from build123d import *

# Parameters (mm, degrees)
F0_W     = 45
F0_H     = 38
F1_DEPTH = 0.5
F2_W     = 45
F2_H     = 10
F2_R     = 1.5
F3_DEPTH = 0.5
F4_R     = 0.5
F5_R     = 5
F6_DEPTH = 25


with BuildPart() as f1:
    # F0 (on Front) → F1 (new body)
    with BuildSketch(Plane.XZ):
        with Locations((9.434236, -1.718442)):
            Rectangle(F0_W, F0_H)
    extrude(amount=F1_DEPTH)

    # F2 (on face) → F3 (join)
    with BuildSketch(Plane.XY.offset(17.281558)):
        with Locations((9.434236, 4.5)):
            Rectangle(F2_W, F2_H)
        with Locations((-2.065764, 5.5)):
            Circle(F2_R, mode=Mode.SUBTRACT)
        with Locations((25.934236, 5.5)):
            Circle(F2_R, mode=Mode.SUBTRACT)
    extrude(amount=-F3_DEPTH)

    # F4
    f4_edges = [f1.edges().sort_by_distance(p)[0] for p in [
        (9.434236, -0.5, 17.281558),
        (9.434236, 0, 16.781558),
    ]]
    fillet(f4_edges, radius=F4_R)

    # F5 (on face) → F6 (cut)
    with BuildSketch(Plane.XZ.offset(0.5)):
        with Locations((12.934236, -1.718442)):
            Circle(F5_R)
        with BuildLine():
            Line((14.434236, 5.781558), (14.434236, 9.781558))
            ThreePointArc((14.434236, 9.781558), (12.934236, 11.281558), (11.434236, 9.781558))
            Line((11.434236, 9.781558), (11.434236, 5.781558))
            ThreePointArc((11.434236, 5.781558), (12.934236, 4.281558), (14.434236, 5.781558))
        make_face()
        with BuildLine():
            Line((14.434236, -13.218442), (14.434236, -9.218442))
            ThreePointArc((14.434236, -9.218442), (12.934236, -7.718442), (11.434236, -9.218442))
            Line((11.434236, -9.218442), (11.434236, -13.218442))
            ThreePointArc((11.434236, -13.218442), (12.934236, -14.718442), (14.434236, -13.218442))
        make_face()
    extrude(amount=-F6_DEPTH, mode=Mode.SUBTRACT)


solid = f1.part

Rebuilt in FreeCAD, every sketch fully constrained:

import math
import FreeCAD as App
import Part
import Sketcher


def edges_at(feature, points):
    """Names of the edges that pass closest to the given points."""
    edges = feature.Shape.Edges
    near = lambda p: min(range(len(edges)), key=lambda i: edges[i].distToShape(Part.Vertex(*p))[0])
    return sorted({f"Edge{near(p) + 1}" for p in points})


def add_polygon(sketch, points):
    """Adds a closed chain of lines whose ends are joined by coincident constraints."""
    first, n = sketch.GeometryCount, len(points)
    for a, b in zip(points, points[1:] + points[:1]):
        sketch.addGeometry(Part.LineSegment(App.Vector(*a, 0), App.Vector(*b, 0)), False)
    for i in range(n):
        sketch.addConstraint(Sketcher.Constraint("Coincident", first + i, 2, first + (i + 1) % n, 1))

doc = App.newDocument("Part")
body = doc.addObject("PartDesign::Body", "Body")

sketch1 = doc.addObject("Sketcher::SketchObject", "Sketch")
body.addObject(sketch1)
sketch1.AttachmentSupport = (doc.XZ_Plane, [""])
sketch1.MapMode = "FlatFace"
add_polygon(sketch1, [(-13.065764, 17.281558), (-13.065764, -20.718442), (31.934236, -20.718442), (31.934236, 17.281558)])
sketch1.addConstraint([
    Sketcher.Constraint("Vertical", 0),
    Sketcher.Constraint("Horizontal", 1),
    Sketcher.Constraint("Vertical", 2),
    Sketcher.Constraint("Horizontal", 3),
    Sketcher.Constraint("DistanceX", 1, 1, 1, 2, 45.0),
    Sketcher.Constraint("DistanceY", 0, 2, 0, 1, 38.0),
    Sketcher.Constraint("DistanceY", 0, 2, -1, 1, 20.718442),
    Sketcher.Constraint("DistanceX", 0, 2, -1, 1, 13.065764),
])
pad1 = doc.addObject("PartDesign::Pad", "Pad")
body.addObject(pad1)
pad1.Profile = sketch1
pad1.Length = 0.5

sketch2 = doc.addObject("Sketcher::SketchObject", "Sketch001")
body.addObject(sketch2)
sketch2.AttachmentSupport = (doc.XY_Plane, [""])
sketch2.MapMode = "FlatFace"
sketch2.AttachmentOffset = App.Placement(App.Vector(0, 0, 17.281558), App.Rotation())
add_polygon(sketch2, [(-13.065764, 9.5), (-13.065764, -0.5), (31.934236, -0.5), (31.934236, 9.5)])
sketch2.addGeometry(Part.Circle(App.Vector(-2.065764, 5.5, 0), App.Vector(0, 0, 1), 1.5), False)
sketch2.addGeometry(Part.Circle(App.Vector(25.934236, 5.5, 0), App.Vector(0, 0, 1), 1.5), False)
sketch2.addConstraint([
    Sketcher.Constraint("Vertical", 0),
    Sketcher.Constraint("Horizontal", 1),
    Sketcher.Constraint("Vertical", 2),
    Sketcher.Constraint("Horizontal", 3),
    Sketcher.Constraint("Equal", 4, 5),
    Sketcher.Constraint("Horizontal", 4, 3, 5, 3),
    Sketcher.Constraint("Diameter", 4, 3.0),
    Sketcher.Constraint("DistanceX", 1, 1, 1, 2, 45.0),
    Sketcher.Constraint("DistanceY", 0, 2, 0, 1, 10.0),
    Sketcher.Constraint("DistanceX", 4, 3, 5, 3, 28.0),
    Sketcher.Constraint("DistanceX", 0, 2, 4, 3, 11.0),
    Sketcher.Constraint("DistanceY", 0, 2, 4, 3, 6.0),
    Sketcher.Constraint("DistanceY", -1, 1, 4, 3, 5.5),
    Sketcher.Constraint("DistanceX", 4, 3, -1, 1, 2.065764),
])
pad2 = doc.addObject("PartDesign::Pad", "Pad001")
body.addObject(pad2)
pad2.Profile = sketch2
pad2.Length = 0.5
pad2.Reversed = True
doc.recompute()

fillet = doc.addObject("PartDesign::Fillet", "Fillet")
body.addObject(fillet)
fillet.Base = (pad2, edges_at(pad2, [(9.434, -0.5, 17.282), (9.434, 0, 16.782)]))
fillet.Radius = 0.5

sketch3 = doc.addObject("Sketcher::SketchObject", "Sketch002")
body.addObject(sketch3)
sketch3.AttachmentSupport = (doc.XZ_Plane, [""])
sketch3.MapMode = "FlatFace"
sketch3.AttachmentOffset = App.Placement(App.Vector(0, 0, 0.5), App.Rotation())
sketch3.addGeometry([
    Part.Circle(App.Vector(12.934236, -1.718442, 0), App.Vector(0, 0, 1), 5),
    Part.LineSegment(App.Vector(14.434236, 5.781558, 0), App.Vector(14.434236, 9.781558, 0)),
    Part.ArcOfCircle(Part.Circle(App.Vector(12.934236, 9.781558, 0), App.Vector(0, 0, 1), 1.5), math.radians(0), math.radians(180)),
    Part.LineSegment(App.Vector(11.434236, 9.781558, 0), App.Vector(11.434236, 5.781558, 0)),
    Part.ArcOfCircle(Part.Circle(App.Vector(12.934236, 5.781558, 0), App.Vector(0, 0, 1), 1.5), math.radians(180), math.radians(360)),
    Part.LineSegment(App.Vector(14.434236, -13.218442, 0), App.Vector(14.434236, -9.218442, 0)),
    Part.ArcOfCircle(Part.Circle(App.Vector(12.934236, -9.218442, 0), App.Vector(0, 0, 1), 1.5), math.radians(0), math.radians(180)),
    Part.LineSegment(App.Vector(11.434236, -9.218442, 0), App.Vector(11.434236, -13.218442, 0)),
    Part.ArcOfCircle(Part.Circle(App.Vector(12.934236, -13.218442, 0), App.Vector(0, 0, 1), 1.5), math.radians(180), math.radians(360)),
], False)
sketch3.addConstraint([
    Sketcher.Constraint("Tangent", 1, 2, 2, 1),
    Sketcher.Constraint("Tangent", 2, 2, 3, 1),
    Sketcher.Constraint("Tangent", 3, 2, 4, 1),
    Sketcher.Constraint("Tangent", 4, 2, 1, 1),
    Sketcher.Constraint("Tangent", 5, 2, 6, 1),
    Sketcher.Constraint("Tangent", 6, 2, 7, 1),
    Sketcher.Constraint("Tangent", 7, 2, 8, 1),
    Sketcher.Constraint("Tangent", 8, 2, 5, 1),
    Sketcher.Constraint("Vertical", 1),
    Sketcher.Constraint("Vertical", 3),
    Sketcher.Constraint("Vertical", 5),
    Sketcher.Constraint("Vertical", 7),
    Sketcher.Constraint("Equal", 4, 6),
    Sketcher.Constraint("Vertical", 0, 3, 2, 3),
    Sketcher.Constraint("Vertical", 4, 3, 6, 3),
    Sketcher.Constraint("Equal", 3, 5),
    Sketcher.Constraint("Diameter", 0, 10.0),
    Sketcher.Constraint("Radius", 2, 1.5),
    Sketcher.Constraint("DistanceY", 1, 1, 1, 2, 4.0),
    Sketcher.Constraint("DistanceY", 6, 3, 4, 3, 15.0),
    Sketcher.Constraint("DistanceY", 0, 3, 2, 3, 11.5),
    Sketcher.Constraint("DistanceY", -1, 1, 4, 3, 5.781558),
    Sketcher.Constraint("DistanceX", -1, 1, 0, 3, 12.934236),
])
pocket1 = doc.addObject("PartDesign::Pocket", "Pocket")
body.addObject(pocket1)
pocket1.Profile = sketch3
pocket1.Length = 25

doc.recompute()
